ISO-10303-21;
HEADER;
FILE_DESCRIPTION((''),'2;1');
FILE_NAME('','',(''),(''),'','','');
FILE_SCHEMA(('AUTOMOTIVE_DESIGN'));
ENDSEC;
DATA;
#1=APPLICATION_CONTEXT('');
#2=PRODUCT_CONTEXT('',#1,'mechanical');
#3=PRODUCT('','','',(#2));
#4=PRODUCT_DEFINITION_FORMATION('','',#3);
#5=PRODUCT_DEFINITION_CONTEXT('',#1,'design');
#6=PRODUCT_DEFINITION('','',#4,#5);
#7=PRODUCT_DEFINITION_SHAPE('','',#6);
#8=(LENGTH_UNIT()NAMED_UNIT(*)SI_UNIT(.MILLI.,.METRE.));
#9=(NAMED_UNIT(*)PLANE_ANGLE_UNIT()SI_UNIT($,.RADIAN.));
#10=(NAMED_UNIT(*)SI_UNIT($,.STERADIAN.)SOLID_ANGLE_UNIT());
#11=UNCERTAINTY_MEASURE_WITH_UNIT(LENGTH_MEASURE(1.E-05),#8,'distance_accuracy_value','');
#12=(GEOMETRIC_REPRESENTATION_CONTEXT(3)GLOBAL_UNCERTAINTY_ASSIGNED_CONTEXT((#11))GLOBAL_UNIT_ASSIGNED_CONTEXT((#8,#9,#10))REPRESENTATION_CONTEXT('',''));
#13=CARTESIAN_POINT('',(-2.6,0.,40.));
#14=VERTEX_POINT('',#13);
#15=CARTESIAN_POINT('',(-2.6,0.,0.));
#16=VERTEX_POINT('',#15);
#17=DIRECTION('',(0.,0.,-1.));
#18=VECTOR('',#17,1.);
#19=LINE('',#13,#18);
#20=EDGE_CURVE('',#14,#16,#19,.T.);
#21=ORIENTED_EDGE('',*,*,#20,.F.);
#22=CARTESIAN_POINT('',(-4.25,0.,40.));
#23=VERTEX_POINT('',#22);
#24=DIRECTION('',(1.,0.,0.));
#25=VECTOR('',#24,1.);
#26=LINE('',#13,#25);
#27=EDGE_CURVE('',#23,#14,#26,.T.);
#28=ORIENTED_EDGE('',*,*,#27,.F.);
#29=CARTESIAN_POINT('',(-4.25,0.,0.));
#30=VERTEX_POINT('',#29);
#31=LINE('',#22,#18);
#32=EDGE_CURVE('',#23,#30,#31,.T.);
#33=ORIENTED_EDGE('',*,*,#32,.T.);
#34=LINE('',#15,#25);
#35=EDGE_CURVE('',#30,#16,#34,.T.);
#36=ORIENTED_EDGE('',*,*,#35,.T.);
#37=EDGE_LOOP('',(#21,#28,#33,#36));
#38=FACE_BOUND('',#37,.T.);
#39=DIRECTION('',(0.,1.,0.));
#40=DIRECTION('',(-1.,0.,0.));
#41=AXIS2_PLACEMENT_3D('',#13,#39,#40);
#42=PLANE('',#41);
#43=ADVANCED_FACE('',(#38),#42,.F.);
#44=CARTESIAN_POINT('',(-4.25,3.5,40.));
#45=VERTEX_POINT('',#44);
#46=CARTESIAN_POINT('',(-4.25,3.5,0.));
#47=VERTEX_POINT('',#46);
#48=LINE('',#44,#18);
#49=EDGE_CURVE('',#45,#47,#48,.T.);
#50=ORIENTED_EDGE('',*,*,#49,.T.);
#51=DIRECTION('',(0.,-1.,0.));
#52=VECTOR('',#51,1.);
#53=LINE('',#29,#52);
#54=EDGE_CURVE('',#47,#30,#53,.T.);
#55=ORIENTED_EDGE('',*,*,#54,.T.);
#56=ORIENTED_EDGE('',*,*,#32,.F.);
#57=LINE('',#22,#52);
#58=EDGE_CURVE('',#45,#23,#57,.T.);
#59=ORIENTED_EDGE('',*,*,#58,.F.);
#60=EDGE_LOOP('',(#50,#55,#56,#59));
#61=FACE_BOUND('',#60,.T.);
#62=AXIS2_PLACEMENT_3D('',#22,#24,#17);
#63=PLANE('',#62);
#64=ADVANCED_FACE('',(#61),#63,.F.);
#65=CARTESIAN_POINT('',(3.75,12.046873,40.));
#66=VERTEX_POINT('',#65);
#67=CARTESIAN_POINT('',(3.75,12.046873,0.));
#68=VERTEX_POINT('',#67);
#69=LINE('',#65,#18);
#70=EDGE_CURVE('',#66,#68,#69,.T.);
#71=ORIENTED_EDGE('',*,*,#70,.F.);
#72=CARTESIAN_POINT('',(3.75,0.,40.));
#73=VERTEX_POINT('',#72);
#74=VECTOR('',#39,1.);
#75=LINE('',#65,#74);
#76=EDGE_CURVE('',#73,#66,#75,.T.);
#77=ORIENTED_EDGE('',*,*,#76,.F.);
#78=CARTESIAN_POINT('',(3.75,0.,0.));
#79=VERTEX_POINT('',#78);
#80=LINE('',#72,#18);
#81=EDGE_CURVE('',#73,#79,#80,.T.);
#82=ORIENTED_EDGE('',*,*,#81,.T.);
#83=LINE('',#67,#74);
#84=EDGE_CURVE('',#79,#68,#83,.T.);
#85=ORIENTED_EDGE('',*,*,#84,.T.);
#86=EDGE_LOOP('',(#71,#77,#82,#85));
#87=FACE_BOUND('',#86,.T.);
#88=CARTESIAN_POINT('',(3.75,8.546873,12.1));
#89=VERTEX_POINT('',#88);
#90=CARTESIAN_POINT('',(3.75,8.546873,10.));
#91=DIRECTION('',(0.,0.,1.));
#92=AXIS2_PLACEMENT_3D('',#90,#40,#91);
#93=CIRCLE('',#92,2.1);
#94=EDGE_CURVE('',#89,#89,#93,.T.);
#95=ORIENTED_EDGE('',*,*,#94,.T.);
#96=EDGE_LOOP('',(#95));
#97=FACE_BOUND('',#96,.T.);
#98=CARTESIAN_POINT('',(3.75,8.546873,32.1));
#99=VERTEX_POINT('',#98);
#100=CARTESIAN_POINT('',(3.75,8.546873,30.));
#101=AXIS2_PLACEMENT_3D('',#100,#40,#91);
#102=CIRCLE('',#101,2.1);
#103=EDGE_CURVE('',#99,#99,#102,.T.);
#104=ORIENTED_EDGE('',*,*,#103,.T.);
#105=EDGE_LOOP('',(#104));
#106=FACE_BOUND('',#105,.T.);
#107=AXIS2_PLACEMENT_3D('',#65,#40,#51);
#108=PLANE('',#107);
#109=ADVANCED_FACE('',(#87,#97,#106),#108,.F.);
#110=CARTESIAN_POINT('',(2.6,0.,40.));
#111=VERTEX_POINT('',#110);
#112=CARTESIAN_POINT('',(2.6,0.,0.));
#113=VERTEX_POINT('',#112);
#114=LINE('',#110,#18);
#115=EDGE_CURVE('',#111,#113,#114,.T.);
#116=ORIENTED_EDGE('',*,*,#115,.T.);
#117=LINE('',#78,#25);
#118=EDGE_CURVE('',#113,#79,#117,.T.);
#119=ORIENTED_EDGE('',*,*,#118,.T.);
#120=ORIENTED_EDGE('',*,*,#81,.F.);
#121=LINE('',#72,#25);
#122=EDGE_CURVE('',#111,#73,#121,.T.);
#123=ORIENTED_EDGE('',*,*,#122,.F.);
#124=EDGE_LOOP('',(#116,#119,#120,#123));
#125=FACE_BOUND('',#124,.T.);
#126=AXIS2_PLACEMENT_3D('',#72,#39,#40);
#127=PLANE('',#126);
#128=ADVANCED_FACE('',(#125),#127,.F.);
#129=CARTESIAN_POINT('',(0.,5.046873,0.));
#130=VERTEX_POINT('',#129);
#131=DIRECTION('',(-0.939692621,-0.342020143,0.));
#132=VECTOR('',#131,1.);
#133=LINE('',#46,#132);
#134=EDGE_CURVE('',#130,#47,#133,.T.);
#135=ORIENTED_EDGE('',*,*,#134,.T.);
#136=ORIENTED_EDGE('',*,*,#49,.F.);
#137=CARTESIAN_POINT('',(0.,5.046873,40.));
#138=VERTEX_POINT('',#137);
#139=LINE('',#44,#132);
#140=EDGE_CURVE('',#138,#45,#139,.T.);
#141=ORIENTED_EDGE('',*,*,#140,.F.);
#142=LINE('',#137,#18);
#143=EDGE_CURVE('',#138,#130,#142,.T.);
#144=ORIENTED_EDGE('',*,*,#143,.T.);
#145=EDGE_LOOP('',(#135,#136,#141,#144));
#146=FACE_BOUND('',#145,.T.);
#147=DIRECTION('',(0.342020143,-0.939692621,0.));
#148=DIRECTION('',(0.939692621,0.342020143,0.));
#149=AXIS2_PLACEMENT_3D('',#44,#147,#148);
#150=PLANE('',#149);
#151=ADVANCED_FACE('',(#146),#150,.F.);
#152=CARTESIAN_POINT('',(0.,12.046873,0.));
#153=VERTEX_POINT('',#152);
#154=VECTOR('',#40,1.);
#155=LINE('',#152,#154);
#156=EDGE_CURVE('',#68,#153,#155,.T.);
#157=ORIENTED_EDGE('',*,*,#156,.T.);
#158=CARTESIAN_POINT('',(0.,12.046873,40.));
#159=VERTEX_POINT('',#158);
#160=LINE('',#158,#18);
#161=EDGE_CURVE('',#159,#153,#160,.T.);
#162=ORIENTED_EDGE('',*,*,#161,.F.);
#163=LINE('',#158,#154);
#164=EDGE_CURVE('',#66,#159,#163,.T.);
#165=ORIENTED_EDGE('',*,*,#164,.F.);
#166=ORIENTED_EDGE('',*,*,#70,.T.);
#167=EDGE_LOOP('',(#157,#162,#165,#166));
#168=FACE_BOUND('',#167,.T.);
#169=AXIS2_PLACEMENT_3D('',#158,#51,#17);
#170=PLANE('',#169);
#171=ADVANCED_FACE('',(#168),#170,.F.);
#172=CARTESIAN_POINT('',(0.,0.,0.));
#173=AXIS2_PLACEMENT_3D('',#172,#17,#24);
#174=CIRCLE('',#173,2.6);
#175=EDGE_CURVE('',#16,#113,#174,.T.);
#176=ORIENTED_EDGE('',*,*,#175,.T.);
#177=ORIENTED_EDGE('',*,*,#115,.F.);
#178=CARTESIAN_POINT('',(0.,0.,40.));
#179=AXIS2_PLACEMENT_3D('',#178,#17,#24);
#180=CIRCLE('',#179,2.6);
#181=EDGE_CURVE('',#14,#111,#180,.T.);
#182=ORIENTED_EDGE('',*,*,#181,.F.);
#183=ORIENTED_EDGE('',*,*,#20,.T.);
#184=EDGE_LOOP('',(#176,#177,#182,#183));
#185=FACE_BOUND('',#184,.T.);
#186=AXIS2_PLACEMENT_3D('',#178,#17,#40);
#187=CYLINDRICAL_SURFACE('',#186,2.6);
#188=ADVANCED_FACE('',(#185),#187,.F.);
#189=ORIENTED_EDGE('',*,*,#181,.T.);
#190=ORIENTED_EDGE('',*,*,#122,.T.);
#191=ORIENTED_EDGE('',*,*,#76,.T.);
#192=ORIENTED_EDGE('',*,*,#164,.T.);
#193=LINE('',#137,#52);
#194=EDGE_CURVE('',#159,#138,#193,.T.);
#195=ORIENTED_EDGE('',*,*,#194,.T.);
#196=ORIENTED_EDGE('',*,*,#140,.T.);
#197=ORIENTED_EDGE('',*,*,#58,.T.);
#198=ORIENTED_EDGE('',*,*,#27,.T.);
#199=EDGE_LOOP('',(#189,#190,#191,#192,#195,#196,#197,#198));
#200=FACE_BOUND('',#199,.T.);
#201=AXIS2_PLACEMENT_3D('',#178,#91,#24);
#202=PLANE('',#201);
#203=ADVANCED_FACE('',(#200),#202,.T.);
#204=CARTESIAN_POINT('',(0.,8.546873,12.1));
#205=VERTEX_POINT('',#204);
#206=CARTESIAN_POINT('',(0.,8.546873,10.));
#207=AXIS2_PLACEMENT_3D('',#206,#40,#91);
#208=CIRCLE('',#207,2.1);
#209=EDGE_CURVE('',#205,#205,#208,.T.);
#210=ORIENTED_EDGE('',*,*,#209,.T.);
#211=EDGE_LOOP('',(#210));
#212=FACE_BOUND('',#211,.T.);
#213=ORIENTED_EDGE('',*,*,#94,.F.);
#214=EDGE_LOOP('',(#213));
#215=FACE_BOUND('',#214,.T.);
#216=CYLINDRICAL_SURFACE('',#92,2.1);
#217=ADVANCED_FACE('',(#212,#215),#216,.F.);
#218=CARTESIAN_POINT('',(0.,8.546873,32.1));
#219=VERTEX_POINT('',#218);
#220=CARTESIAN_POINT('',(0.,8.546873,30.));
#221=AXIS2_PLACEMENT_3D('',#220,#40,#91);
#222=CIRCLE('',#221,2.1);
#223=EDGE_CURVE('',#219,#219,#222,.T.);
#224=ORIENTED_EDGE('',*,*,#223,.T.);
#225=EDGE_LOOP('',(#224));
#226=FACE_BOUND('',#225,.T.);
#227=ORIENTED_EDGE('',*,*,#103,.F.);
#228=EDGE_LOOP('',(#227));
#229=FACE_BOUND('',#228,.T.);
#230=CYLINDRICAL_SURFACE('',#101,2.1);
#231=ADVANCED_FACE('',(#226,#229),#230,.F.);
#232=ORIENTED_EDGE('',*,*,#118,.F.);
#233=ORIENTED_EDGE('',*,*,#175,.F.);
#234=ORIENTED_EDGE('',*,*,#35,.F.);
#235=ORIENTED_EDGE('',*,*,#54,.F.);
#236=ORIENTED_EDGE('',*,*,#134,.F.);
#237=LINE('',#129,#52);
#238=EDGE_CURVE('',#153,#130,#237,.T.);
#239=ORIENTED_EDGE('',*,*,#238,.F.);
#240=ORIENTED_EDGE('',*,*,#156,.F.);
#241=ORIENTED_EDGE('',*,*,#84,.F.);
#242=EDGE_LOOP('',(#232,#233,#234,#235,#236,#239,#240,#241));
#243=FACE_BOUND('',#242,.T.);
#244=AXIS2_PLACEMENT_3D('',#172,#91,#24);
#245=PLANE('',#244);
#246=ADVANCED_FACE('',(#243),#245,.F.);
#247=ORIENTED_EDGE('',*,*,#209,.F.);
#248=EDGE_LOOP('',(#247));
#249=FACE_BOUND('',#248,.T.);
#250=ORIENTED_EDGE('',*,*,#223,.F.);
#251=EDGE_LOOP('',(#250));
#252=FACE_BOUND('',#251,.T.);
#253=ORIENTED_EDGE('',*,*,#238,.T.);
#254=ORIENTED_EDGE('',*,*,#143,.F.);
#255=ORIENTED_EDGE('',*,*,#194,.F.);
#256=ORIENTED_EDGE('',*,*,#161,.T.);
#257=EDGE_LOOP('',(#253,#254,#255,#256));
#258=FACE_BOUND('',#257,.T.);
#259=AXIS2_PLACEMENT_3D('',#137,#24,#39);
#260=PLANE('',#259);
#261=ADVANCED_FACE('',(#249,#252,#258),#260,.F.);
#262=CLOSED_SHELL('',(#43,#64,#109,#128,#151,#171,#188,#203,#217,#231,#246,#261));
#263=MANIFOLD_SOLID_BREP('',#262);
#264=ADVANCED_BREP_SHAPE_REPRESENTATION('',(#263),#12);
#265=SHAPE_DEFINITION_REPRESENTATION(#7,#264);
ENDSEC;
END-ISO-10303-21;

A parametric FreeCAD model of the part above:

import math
import FreeCAD as App
import Part
import Sketcher
from FreeCAD import Vector
Q = App.Units.Quantity

doc = App.newDocument("Part")
params = doc.addObject("Spreadsheet::Sheet", "Params")
for row, (alias, value) in enumerate([
    ("sketch1_radius", "2.6 mm"),
    ("sketch1_height", "7 mm"),
    ("sketch1_height2", "3.5 mm"),
    ("sketch1_width", "1.65 mm"),
    ("pad1_length", "40 mm"),
    ("sketch2_diameter", "4.2 mm"),
], start=1):
    params.set(f"A{row}", alias)
    params.set(f"B{row}", "=" + value)
    params.setAlias(f"B{row}", alias)

body = doc.addObject("PartDesign::Body", "Body")

sketch1 = body.newObject("Sketcher::SketchObject", "Sketch")
sketch1.AttachmentSupport = (doc.getObject("XY_Plane"), [""])
sketch1.MapMode = "FlatFace"
sketch1.addGeometry(Part.LineSegment(Vector(-4.2, 0, 0), Vector(-2.6, 0, 0)), False)
sketch1.addGeometry(Part.ArcOfCircle(Part.Circle(Vector(0, 0, 0), Vector(0, 0, 1), 2.6), math.radians(0), math.radians(180)), False)
sketch1.addGeometry(Part.LineSegment(Vector(2.6, 0, 0), Vector(3.8, 0, 0)), False)
sketch1.addGeometry(Part.LineSegment(Vector(3.8, 0, 0), Vector(3.8, 12, 0)), False)
sketch1.addGeometry(Part.LineSegment(Vector(3.8, 12, 0), Vector(0, 12, 0)), False)
sketch1.addGeometry(Part.LineSegment(Vector(0, 12, 0), Vector(0, 5, 0)), False)
sketch1.addGeometry(Part.LineSegment(Vector(0, 5, 0), Vector(-4.2, 3.5, 0)), False)
sketch1.addGeometry(Part.LineSegment(Vector(-4.2, 3.5, 0), Vector(-4.2, 0, 0)), False)
sketch1.addConstraint(Sketcher.Constraint("Coincident", 0, 2, 1, 2))
sketch1.addConstraint(Sketcher.Constraint("Coincident", 1, 1, 2, 1))
sketch1.addConstraint(Sketcher.Constraint("Coincident", 2, 2, 3, 1))
sketch1.addConstraint(Sketcher.Constraint("Coincident", 3, 2, 4, 1))
sketch1.addConstraint(Sketcher.Constraint("Coincident", 4, 2, 5, 1))
sketch1.addConstraint(Sketcher.Constraint("Coincident", 5, 2, 6, 1))
sketch1.addConstraint(Sketcher.Constraint("Coincident", 6, 2, 7, 1))
sketch1.addConstraint(Sketcher.Constraint("Coincident", 7, 2, 0, 1))
sketch1.addConstraint(Sketcher.Constraint("Horizontal", 0))
sketch1.addConstraint(Sketcher.Constraint("Horizontal", 2))
sketch1.addConstraint(Sketcher.Constraint("Vertical", 3))
sketch1.addConstraint(Sketcher.Constraint("Horizontal", 4))
sketch1.addConstraint(Sketcher.Constraint("Vertical", 5))
sketch1.addConstraint(Sketcher.Constraint("Vertical", 7))
sketch1.addConstraint(Sketcher.Constraint("Coincident", 1, 3, -1, 1))
sketch1.addConstraint(Sketcher.Constraint("PointOnObject", 0, 2, -1))
sketch1.addConstraint(Sketcher.Constraint("PointOnObject", 1, 1, -1))
sketch1.addConstraint(Sketcher.Constraint("PointOnObject", 4, 2, -2))
sketch1.addConstraint(Sketcher.Constraint("Radius", 1, Q("2.6 mm")))
sketch1.addConstraint(Sketcher.Constraint("DistanceY", 5, 2, 5, 1, Q("7 mm")))
sketch1.addConstraint(Sketcher.Constraint("Angle", 6, Q("-160 deg")))
sketch1.addConstraint(Sketcher.Constraint("DistanceY", 7, 2, 7, 1, Q("3.5 mm")))
sketch1.addConstraint(Sketcher.Constraint("DistanceX", 6, 2, 2, 2, Q("8 mm")))
sketch1.addConstraint(Sketcher.Constraint("DistanceX", 0, 1, 0, 2, Q("1.65 mm")))
sketch1.setExpression("Constraints[18]", "Params.sketch1_radius")
sketch1.setExpression("Constraints[19]", "Params.sketch1_height")
sketch1.setExpression("Constraints[21]", "Params.sketch1_height2")
sketch1.setExpression("Constraints[23]", "Params.sketch1_width")
pad1 = body.newObject("PartDesign::Pad", "Pad")
pad1.Profile = sketch1
pad1.setExpression("Length", "Params.pad1_length")

sketch2 = body.newObject("Sketcher::SketchObject", "Sketch001")
sketch2.AttachmentSupport = (doc.getObject("YZ_Plane"), [""])
sketch2.MapMode = "FlatFace"
sketch2.addGeometry(Part.Circle(Vector(8.5, 10, 0), Vector(0, 0, 1), 2.1), False)
sketch2.addGeometry(Part.Circle(Vector(8.5, 30, 0), Vector(0, 0, 1), 2.1), False)
sketch2.addConstraint(Sketcher.Constraint("Equal", 0, 1))
sketch2.addConstraint(Sketcher.Constraint("Vertical", 0, 3, 1, 3))
sketch2.addConstraint(Sketcher.Constraint("Diameter", 0, Q("4.2 mm")))
sketch2.addConstraint(Sketcher.Constraint("DistanceY", -1, 1, 0, 3, Q("10 mm")))
sketch2.addConstraint(Sketcher.Constraint("DistanceY", -1, 1, 1, 3, Q("30 mm")))
sketch2.addConstraint(Sketcher.Constraint("DistanceX", -1, 1, 0, 3, Q("8.546873 mm")))
sketch2.setExpression("Constraints[2]", "Params.sketch2_diameter")
pocket1 = body.newObject("PartDesign::Pocket", "Pocket")
pocket1.Profile = sketch2
pocket1.Type = "ThroughAll"
pocket1.Reversed = True

doc.recompute()
